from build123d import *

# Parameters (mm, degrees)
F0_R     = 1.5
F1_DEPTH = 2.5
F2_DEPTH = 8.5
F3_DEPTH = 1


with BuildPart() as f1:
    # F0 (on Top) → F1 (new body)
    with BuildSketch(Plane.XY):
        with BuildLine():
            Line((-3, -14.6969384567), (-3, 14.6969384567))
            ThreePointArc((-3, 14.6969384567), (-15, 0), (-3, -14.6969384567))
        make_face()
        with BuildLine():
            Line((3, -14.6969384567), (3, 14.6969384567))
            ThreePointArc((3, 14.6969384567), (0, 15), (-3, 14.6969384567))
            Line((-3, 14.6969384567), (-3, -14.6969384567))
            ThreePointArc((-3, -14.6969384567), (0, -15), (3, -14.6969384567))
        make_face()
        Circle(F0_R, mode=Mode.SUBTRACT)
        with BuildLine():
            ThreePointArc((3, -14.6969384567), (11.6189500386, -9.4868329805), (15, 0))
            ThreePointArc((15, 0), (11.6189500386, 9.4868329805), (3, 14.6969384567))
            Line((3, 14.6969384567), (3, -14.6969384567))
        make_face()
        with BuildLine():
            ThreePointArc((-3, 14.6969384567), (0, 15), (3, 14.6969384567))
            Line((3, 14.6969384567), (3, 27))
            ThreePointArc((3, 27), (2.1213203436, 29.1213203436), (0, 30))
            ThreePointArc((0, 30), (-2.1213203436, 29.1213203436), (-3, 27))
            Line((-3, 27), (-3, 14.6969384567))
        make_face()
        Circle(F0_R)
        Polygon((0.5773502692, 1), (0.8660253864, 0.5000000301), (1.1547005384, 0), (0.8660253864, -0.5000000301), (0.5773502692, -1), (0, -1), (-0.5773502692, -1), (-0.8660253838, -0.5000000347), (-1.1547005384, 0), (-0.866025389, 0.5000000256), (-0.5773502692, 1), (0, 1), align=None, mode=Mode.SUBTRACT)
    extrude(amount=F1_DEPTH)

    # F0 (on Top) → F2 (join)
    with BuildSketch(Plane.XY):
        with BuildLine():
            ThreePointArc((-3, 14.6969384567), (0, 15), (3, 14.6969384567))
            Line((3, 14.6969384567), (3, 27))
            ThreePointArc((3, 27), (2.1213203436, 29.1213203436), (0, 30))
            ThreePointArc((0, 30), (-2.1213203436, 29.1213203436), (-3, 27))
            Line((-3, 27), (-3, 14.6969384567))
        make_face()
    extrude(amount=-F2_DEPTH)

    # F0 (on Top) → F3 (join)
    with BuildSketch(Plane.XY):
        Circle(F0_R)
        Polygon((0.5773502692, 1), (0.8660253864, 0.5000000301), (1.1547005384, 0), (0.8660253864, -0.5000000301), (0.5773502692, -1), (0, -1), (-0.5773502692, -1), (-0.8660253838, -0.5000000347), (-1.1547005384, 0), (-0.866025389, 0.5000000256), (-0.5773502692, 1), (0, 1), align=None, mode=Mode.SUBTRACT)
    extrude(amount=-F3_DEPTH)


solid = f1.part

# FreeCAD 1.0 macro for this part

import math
import FreeCAD as App
import Part
import Sketcher

V = App.Vector
Q = App.Units.Quantity


def add_polygon(sketch, points):
    """Adds a closed chain of lines whose ends are joined by coincident constraints."""
    first, n = sketch.GeometryCount, len(points)
    for a, b in zip(points, points[1:] + points[:1]):
        sketch.addGeometry(Part.LineSegment(App.Vector(*a, 0), App.Vector(*b, 0)), False)
    for i in range(n):
        sketch.addConstraint(Sketcher.Constraint("Coincident", first + i, 2, first + (i + 1) % n, 1))

doc = App.newDocument("Part")
body = doc.addObject("PartDesign::Body", "Body")

sketch1 = body.newObject("Sketcher::SketchObject", "Sketch")
sketch1.AttachmentSupport = (doc.getObject("XY_Plane"), [""])
sketch1.MapMode = "FlatFace"
sketch1.addGeometry(Part.ArcOfCircle(Part.Circle(V(0, 0, 0), V(0, 0, 1), 15), math.radians(102), math.radians(282)), False)
sketch1.addGeometry(Part.ArcOfCircle(Part.Circle(V(0, 0, 0), V(0, 0, 1), 15), math.radians(-78), math.radians(0)), False)
sketch1.addGeometry(Part.ArcOfCircle(Part.Circle(V(0, 0, 0), V(0, 0, 1), 15), math.radians(0), math.radians(78)), False)
sketch1.addGeometry(Part.LineSegment(V(3, 14.7, 0), V(3, 27, 0)), False)
sketch1.addGeometry(Part.ArcOfCircle(Part.Circle(V(0, 27, 0), V(0, 0, 1), 3), math.radians(0), math.radians(90)), False)
sketch1.addGeometry(Part.ArcOfCircle(Part.Circle(V(0, 27, 0), V(0, 0, 1), 3), math.radians(90), math.radians(180)), False)
sketch1.addGeometry(Part.LineSegment(V(-3, 27, 0), V(-3, 14.7, 0)), False)
add_polygon(sketch1, [(-0.6, 1), (0.6, 1), (0.9, 0.5), (1.2, 0), (0.9, -0.5), (0.6, -1), (-0.6, -1), (-0.9, -0.5), (-1.2, 0), (-0.9, 0.5)])
sketch1.addConstraint([
    Sketcher.Constraint("Tangent", 0, 2, 1, 1),
    Sketcher.Constraint("Tangent", 1, 2, 2, 1),
    Sketcher.Constraint("Coincident", 2, 2, 3, 1),
    Sketcher.Constraint("Tangent", 3, 2, 4, 1),
    Sketcher.Constraint("Tangent", 4, 2, 5, 1),
    Sketcher.Constraint("Tangent", 5, 2, 6, 1),
    Sketcher.Constraint("Coincident", 6, 2, 0, 1),
    Sketcher.Constraint("Vertical", 3),
    Sketcher.Constraint("Vertical", 6),
    Sketcher.Constraint("Horizontal", 7),
    Sketcher.Constraint("Horizontal", 12),
    Sketcher.Constraint("Coincident", 0, 3, -1, 1),
    Sketcher.Constraint("Coincident", 2, 3, -1, 1),
    Sketcher.Constraint("Equal", 4, 5),
    Sketcher.Constraint("Symmetric", 7, 2, 12, 2, -1, 1),
    Sketcher.Constraint("Symmetric", 8, 2, 13, 2, -1, 1),
    Sketcher.Constraint("Symmetric", 9, 2, 14, 2, -1, 1),
    Sketcher.Constraint("Symmetric", 10, 2, 15, 2, -1, 1),
    Sketcher.Constraint("Symmetric", 10, 2, 13, 2, -2),
    Sketcher.Constraint("PointOnObject", 4, 3, -2),
    Sketcher.Constraint("PointOnObject", 1, 2, -1),
    Sketcher.Constraint("PointOnObject", 4, 2, -2),
    Sketcher.Constraint("PointOnObject", 9, 2, -1),
    Sketcher.Constraint("Parallel", 8, 9),
    Sketcher.Constraint("Parallel", 10, 11),
    Sketcher.Constraint("Parallel", 15, 16),
    Sketcher.Constraint("Vertical", 0, 2, 2, 2),
    Sketcher.Constraint("Equal", 8, 9),
    Sketcher.Constraint("Radius", 0, Q("15 mm")),
    Sketcher.Constraint("Radius", 4, Q("3 mm")),
    Sketcher.Constraint("Angle", 8, Q("-60 deg")),
    Sketcher.Constraint("DistanceY", -1, 1, 4, 3, Q("27 mm")),
    Sketcher.Constraint("DistanceY", -1, 1, 7, 2, Q("1 mm")),
    Sketcher.Constraint("DistanceX", 7, 1, 7, 2, Q("1.154701 mm")),
])
pad1 = body.newObject("PartDesign::Pad", "Pad")
pad1.Profile = sketch1
pad1.Length = 2.5

sketch2 = body.newObject("Sketcher::SketchObject", "Sketch001")
sketch2.AttachmentSupport = (doc.getObject("XY_Plane"), [""])
sketch2.MapMode = "FlatFace"
sketch2.addGeometry([
    Part.ArcOfCircle(Part.Circle(V(0, 0, 0), V(0, 0, 1), 15), math.radians(78), math.radians(102)),
    Part.LineSegment(V(3, 14.7, 0), V(3, 27, 0)),
    Part.ArcOfCircle(Part.Circle(V(0, 27, 0), V(0, 0, 1), 3), math.radians(0), math.radians(90)),
    Part.ArcOfCircle(Part.Circle(V(0, 27, 0), V(0, 0, 1), 3), math.radians(90), math.radians(180)),
    Part.LineSegment(V(-3, 27, 0), V(-3, 14.7, 0)),
], False)
sketch2.addConstraint([
    Sketcher.Constraint("Coincident", 0, 1, 1, 1),
    Sketcher.Constraint("Tangent", 1, 2, 2, 1),
    Sketcher.Constraint("Tangent", 2, 2, 3, 1),
    Sketcher.Constraint("Tangent", 3, 2, 4, 1),
    Sketcher.Constraint("Coincident", 4, 2, 0, 2),
    Sketcher.Constraint("Vertical", 1),
    Sketcher.Constraint("Vertical", 4),
    Sketcher.Constraint("Coincident", 0, 3, -1, 1),
    Sketcher.Constraint("Equal", 2, 3),
    Sketcher.Constraint("PointOnObject", 2, 3, -2),
    Sketcher.Constraint("PointOnObject", 2, 2, -2),
    Sketcher.Constraint("Radius", 0, Q("15 mm")),
    Sketcher.Constraint("Radius", 2, Q("3 mm")),
    Sketcher.Constraint("DistanceY", -1, 1, 2, 3, Q("27 mm")),
])
pad2 = body.newObject("PartDesign::Pad", "Pad001")
pad2.Profile = sketch2
pad2.Length = 8.5
pad2.Reversed = True

sketch3 = body.newObject("Sketcher::SketchObject", "Sketch002")
sketch3.AttachmentSupport = (doc.getObject("XY_Plane"), [""])
sketch3.MapMode = "FlatFace"
sketch3.addGeometry(Part.Circle(V(0, 0, 0), V(0, 0, 1), 1.5), False)
add_polygon(sketch3, [(-0.6, 1), (0.6, 1), (0.9, 0.5), (1.2, 0), (0.9, -0.5), (0.6, -1), (-0.6, -1), (-0.9, -0.5), (-1.2, 0), (-0.9, 0.5)])
sketch3.addConstraint([
    Sketcher.Constraint("Horizontal", 1),
    Sketcher.Constraint("Horizontal", 6),
    Sketcher.Constraint("Coincident", 0, 3, -1, 1),
    Sketcher.Constraint("Symmetric", 1, 2, 6, 2, -1, 1),
    Sketcher.Constraint("Symmetric", 2, 2, 7, 2, -1, 1),
    Sketcher.Constraint("Symmetric", 3, 2, 8, 2, -1, 1),
    Sketcher.Constraint("Symmetric", 4, 2, 9, 2, -1, 1),
    Sketcher.Constraint("Symmetric", 4, 2, 7, 2, -2),
    Sketcher.Constraint("PointOnObject", 3, 2, -1),
    Sketcher.Constraint("Parallel", 2, 3),
    Sketcher.Constraint("Parallel", 4, 5),
    Sketcher.Constraint("Parallel", 9, 10),
    Sketcher.Constraint("Equal", 2, 3),
    Sketcher.Constraint("Diameter", 0, Q("3 mm")),
    Sketcher.Constraint("Angle", 2, Q("-60 deg")),
    Sketcher.Constraint("DistanceY", -1, 1, 1, 2, Q("1 mm")),
    Sketcher.Constraint("DistanceX", 1, 1, 1, 2, Q("1.154701 mm")),
])
pad3 = body.newObject("PartDesign::Pad", "Pad002")
pad3.Profile = sketch3
pad3.Length = 1
pad3.Reversed = True

doc.recompute()
